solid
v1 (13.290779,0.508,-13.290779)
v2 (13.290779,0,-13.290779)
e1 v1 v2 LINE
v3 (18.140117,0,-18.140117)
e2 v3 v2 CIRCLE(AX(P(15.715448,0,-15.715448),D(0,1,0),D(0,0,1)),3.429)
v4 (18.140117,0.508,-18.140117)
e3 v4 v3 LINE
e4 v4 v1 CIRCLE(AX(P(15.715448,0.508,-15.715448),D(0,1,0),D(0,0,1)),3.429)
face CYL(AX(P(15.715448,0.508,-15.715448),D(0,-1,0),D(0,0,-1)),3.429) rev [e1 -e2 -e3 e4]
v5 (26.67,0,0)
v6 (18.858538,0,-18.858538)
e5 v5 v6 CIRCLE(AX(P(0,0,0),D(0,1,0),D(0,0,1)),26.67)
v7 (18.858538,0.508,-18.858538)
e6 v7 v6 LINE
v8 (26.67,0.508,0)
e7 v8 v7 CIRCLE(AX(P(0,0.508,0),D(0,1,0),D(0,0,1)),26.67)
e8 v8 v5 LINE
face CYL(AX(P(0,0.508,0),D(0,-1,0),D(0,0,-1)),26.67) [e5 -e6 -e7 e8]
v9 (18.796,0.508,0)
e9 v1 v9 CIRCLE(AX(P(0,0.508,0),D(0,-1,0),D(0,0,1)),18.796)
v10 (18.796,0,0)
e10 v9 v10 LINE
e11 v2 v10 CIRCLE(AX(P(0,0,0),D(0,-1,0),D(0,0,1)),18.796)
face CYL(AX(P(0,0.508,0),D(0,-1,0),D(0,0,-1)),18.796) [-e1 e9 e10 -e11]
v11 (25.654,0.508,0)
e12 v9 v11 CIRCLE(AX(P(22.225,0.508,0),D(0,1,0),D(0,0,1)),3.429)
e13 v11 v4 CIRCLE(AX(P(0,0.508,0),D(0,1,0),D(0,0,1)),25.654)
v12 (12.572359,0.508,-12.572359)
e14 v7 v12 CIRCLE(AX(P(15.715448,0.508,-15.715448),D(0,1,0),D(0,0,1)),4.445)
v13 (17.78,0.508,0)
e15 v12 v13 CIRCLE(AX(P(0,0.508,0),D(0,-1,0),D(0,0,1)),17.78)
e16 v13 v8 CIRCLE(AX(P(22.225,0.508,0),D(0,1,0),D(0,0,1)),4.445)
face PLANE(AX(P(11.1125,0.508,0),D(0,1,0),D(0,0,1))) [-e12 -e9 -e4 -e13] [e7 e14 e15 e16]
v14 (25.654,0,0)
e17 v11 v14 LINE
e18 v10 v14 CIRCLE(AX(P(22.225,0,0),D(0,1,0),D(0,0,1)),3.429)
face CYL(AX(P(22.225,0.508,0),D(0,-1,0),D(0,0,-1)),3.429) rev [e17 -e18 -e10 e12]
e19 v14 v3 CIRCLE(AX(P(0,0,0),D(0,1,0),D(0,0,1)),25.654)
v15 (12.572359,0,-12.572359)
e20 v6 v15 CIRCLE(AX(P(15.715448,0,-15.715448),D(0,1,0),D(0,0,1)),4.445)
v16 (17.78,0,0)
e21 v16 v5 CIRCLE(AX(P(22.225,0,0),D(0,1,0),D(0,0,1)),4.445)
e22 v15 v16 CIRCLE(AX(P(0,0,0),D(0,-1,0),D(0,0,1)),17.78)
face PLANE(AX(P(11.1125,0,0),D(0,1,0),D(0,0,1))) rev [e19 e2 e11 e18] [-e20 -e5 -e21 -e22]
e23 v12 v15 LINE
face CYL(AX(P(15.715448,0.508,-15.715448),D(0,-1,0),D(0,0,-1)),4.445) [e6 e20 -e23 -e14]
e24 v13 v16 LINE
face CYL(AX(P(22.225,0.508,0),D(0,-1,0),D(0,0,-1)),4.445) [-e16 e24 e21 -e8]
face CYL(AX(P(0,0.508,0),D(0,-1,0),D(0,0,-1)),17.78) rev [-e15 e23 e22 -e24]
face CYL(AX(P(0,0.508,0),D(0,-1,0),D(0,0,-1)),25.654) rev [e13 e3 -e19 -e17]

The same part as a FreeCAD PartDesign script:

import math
import FreeCAD as App
import Part
import Sketcher

V = App.Vector
Q = App.Units.Quantity

doc = App.newDocument("Part")
params = doc.addObject("Spreadsheet::Sheet", "Params")
for row, (alias, value) in enumerate([
    ("sketch1_radius", "0.7 in"),
    ("sketch1_radius2", "1.05 in"),
    ("sketch1_radius3", "1.01 in"),
    ("pad1_length", "0.02 in"),
], start=1):
    params.set(f"A{row}", alias)
    params.set(f"B{row}", "=" + value)
    params.setAlias(f"B{row}", alias)

body = doc.addObject("PartDesign::Body", "Body")

sketch1 = body.newObject("Sketcher::SketchObject", "Sketch")
sketch1.AttachmentSupport = (doc.getObject("XZ_Plane"), [""])
sketch1.MapMode = "FlatFace"
sketch1.addGeometry(Part.ArcOfCircle(Part.Circle(V(0, 0, 0), V(0, 0, 1), 26.7), math.radians(-45), math.radians(0)), False)
sketch1.addGeometry(Part.ArcOfCircle(Part.Circle(V(15.7, -15.7, 0), V(0, 0, 1), 4.4), math.radians(135), math.radians(315)), False)
sketch1.addGeometry(Part.ArcOfCircle(Part.Circle(V(0, 0, 0), V(0, 0, 1), 17.8), math.radians(-45), math.radians(0)), False)
sketch1.addGeometry(Part.ArcOfCircle(Part.Circle(V(22.2, 0, 0), V(0, 0, 1), 4.4), math.radians(0), math.radians(180)), False)
sketch1.addGeometry(Part.ArcOfCircle(Part.Circle(V(0, 0, 0), V(0, 0, 1), 25.7), math.radians(-45), math.radians(0)), False)
sketch1.addGeometry(Part.ArcOfCircle(Part.Circle(V(22.2, 0, 0), V(0, 0, 1), 3.4), math.radians(0), math.radians(180)), False)
sketch1.addGeometry(Part.ArcOfCircle(Part.Circle(V(0, 0, 0), V(0, 0, 1), 18.8), math.radians(-45), math.radians(0)), False)
sketch1.addGeometry(Part.ArcOfCircle(Part.Circle(V(15.7, -15.7, 0), V(0, 0, 1), 3.4), math.radians(135), math.radians(315)), False)
sketch1.addConstraint(Sketcher.Constraint("Tangent", 0, 1, 1, 2))
sketch1.addConstraint(Sketcher.Constraint("Tangent", 1, 1, 2, 1))
sketch1.addConstraint(Sketcher.Constraint("Tangent", 2, 2, 3, 2))
sketch1.addConstraint(Sketcher.Constraint("Tangent", 3, 1, 0, 2))
sketch1.addConstraint(Sketcher.Constraint("Tangent", 4, 2, 5, 1))
sketch1.addConstraint(Sketcher.Constraint("Tangent", 5, 2, 6, 2))
sketch1.addConstraint(Sketcher.Constraint("Tangent", 6, 1, 7, 1))
sketch1.addConstraint(Sketcher.Constraint("Tangent", 7, 2, 4, 1))
sketch1.addConstraint(Sketcher.Constraint("Coincident", 0, 3, -1, 1))
sketch1.addConstraint(Sketcher.Constraint("Coincident", 2, 3, -1, 1))
sketch1.addConstraint(Sketcher.Constraint("Coincident", 4, 3, -1, 1))
sketch1.addConstraint(Sketcher.Constraint("Coincident", 6, 3, -1, 1))
sketch1.addConstraint(Sketcher.Constraint("Coincident", 5, 3, 3, 3))
sketch1.addConstraint(Sketcher.Constraint("PointOnObject", 3, 3, -1))
sketch1.addConstraint(Sketcher.Constraint("Radius", 2, Q("0.7 in")))
sketch1.addConstraint(Sketcher.Constraint("Radius", 0, Q("1.05 in")))
sketch1.addConstraint(Sketcher.Constraint("Radius", 4, Q("1.01 in")))
sketch1.addConstraint(Sketcher.Constraint("DistanceX", -1, 1, 1, 3, Q("15.715448 mm")))
sketch1.addConstraint(Sketcher.Constraint("DistanceX", -1, 1, 7, 3, Q("15.715448 mm")))
sketch1.setExpression("Constraints[14]", "Params.sketch1_radius")
sketch1.setExpression("Constraints[15]", "Params.sketch1_radius2")
sketch1.setExpression("Constraints[16]", "Params.sketch1_radius3")
pad1 = body.newObject("PartDesign::Pad", "Pad")
pad1.Profile = sketch1
pad1.setExpression("Length", "Params.pad1_length")
pad1.Reversed = True

doc.recompute()
